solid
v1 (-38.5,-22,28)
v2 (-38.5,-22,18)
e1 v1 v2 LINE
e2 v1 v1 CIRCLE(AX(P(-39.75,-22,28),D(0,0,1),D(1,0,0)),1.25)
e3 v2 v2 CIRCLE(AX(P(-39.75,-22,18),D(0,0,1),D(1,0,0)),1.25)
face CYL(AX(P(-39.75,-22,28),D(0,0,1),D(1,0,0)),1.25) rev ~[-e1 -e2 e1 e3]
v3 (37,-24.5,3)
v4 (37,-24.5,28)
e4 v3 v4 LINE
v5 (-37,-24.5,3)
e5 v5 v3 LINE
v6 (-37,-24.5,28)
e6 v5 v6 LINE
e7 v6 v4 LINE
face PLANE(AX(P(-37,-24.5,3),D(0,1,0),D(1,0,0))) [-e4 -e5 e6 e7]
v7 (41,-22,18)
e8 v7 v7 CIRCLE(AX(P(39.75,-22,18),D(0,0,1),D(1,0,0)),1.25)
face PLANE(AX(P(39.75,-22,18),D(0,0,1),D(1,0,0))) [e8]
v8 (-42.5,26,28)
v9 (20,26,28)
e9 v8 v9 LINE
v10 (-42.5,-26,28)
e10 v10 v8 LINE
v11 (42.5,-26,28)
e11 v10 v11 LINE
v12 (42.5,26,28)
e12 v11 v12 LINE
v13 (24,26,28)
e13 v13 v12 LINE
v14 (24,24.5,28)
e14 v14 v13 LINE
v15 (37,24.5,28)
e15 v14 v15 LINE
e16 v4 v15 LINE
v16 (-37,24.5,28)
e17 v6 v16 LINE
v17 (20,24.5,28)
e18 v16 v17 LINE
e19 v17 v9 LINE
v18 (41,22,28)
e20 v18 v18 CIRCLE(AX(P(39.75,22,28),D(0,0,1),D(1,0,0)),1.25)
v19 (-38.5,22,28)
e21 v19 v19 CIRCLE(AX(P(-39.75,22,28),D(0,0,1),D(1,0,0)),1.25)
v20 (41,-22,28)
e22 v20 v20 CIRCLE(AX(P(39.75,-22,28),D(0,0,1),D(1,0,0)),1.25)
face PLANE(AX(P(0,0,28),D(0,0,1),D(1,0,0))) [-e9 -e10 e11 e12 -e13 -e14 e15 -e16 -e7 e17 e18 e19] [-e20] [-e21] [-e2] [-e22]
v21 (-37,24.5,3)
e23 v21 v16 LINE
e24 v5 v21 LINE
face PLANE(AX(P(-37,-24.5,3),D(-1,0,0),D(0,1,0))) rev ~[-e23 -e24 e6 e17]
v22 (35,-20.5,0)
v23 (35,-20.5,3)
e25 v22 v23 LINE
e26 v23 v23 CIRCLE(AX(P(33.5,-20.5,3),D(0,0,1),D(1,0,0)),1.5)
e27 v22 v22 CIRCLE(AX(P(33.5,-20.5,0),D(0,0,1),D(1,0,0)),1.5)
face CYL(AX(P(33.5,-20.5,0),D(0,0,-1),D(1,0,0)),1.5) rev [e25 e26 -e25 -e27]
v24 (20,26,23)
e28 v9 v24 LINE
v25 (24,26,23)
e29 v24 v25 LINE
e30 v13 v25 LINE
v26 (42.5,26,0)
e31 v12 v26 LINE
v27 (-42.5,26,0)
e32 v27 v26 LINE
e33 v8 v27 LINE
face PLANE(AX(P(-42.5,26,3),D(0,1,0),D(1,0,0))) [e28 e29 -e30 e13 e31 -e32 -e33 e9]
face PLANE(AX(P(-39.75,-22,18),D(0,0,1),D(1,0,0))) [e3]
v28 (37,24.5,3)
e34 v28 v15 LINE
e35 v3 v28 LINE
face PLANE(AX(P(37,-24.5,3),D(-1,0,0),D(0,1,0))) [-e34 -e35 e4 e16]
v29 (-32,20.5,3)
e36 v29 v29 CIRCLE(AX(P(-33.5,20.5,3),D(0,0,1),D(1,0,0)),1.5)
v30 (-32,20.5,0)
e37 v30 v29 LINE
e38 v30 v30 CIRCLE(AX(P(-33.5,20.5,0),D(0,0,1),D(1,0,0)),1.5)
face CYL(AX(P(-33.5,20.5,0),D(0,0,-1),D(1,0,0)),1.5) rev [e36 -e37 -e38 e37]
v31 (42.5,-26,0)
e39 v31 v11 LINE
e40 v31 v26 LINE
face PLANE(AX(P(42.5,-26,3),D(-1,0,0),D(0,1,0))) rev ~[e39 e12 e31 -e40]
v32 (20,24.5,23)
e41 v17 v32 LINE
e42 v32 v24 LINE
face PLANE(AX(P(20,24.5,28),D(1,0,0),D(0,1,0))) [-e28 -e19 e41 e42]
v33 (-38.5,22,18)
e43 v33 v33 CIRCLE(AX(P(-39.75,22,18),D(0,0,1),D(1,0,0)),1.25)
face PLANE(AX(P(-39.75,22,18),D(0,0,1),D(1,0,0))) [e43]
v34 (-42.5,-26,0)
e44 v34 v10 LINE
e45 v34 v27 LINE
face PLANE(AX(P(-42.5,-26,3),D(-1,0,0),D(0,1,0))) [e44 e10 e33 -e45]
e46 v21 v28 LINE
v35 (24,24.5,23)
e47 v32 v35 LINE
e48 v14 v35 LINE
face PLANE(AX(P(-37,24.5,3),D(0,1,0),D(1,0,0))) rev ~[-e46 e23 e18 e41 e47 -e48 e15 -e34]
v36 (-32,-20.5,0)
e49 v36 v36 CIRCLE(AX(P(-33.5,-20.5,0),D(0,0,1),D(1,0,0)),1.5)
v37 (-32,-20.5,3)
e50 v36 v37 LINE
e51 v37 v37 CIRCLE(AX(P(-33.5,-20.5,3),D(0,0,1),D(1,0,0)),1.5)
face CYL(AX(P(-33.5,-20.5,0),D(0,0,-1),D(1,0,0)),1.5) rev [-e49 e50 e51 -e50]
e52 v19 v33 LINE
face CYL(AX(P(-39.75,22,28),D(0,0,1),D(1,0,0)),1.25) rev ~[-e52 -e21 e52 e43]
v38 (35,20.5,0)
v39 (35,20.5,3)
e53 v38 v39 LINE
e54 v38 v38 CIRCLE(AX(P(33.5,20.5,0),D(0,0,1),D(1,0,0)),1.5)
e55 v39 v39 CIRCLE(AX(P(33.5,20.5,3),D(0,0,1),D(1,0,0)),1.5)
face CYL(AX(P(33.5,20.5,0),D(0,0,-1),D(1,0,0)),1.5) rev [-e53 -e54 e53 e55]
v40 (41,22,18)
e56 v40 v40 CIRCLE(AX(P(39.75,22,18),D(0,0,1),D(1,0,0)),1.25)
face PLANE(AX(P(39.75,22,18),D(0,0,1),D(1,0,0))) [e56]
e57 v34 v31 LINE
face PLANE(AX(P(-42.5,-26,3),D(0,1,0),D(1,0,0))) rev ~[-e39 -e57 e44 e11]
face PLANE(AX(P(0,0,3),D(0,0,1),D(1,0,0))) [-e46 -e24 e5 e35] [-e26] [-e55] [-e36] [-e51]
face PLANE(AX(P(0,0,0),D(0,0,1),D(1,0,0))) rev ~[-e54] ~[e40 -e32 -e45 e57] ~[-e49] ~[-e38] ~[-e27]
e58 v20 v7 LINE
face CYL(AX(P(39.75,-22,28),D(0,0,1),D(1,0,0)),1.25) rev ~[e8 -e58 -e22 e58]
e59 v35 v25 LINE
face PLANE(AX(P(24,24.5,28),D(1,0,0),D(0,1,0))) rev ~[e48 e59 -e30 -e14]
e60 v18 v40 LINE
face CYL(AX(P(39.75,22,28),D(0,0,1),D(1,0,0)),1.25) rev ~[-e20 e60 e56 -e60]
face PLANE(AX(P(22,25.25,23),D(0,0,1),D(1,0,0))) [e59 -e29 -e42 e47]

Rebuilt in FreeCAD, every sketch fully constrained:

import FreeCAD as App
import Part
import Sketcher
from FreeCAD import Vector

doc = App.newDocument("Part")
params = doc.addObject("Spreadsheet::Sheet", "Params")
for row, (alias, value) in enumerate([
    ("sketch1_diameter", "3 mm"),
    ("sketch1_width", "85 mm"),
    ("sketch1_height", "52 mm"),
    ("pad1_length", "3 mm"),
    ("sketch2_width", "85 mm"),
    ("sketch2_width2", "74 mm"),
    ("sketch2_height", "52 mm"),
    ("sketch2_height2", "49 mm"),
    ("pad2_length", "25 mm"),
    ("sketch3_diameter", "2.5 mm"),
    ("pocket1_length", "10 mm"),
    ("sketch4_width", "4 mm"),
    ("sketch4_height", "1.5 mm"),
    ("pocket2_length", "5 mm"),
], start=1):
    params.set(f"A{row}", alias)
    params.set(f"B{row}", "=" + value)
    params.setAlias(f"B{row}", alias)

body = doc.addObject("PartDesign::Body", "Body")

# Sketch on XY plane
sketch1 = body.newObject("Sketcher::SketchObject", "Sketch")
sketch1.AttachmentSupport = (doc.getObject("XY_Plane"), [""])
sketch1.MapMode = "FlatFace"
sketch1.addGeometry(Part.LineSegment(Vector(-42.5, 26, 0), Vector(-42.5, -26, 0)), False)
sketch1.addGeometry(Part.LineSegment(Vector(-42.5, -26, 0), Vector(42.5, -26, 0)), False)
sketch1.addGeometry(Part.LineSegment(Vector(42.5, -26, 0), Vector(42.5, 26, 0)), False)
sketch1.addGeometry(Part.LineSegment(Vector(42.5, 26, 0), Vector(-42.5, 26, 0)), False)
sketch1.addGeometry(Part.Circle(Vector(-33.5, -20.5, 0), Vector(0, 0, 1), 1.5), False)
sketch1.addGeometry(Part.Circle(Vector(33.5, -20.5, 0), Vector(0, 0, 1), 1.5), False)
sketch1.addGeometry(Part.Circle(Vector(-33.5, 20.5, 0), Vector(0, 0, 1), 1.5), False)
sketch1.addGeometry(Part.Circle(Vector(33.5, 20.5, 0), Vector(0, 0, 1), 1.5), False)
sketch1.addConstraint(Sketcher.Constraint("Coincident", 0, 2, 1, 1))
sketch1.addConstraint(Sketcher.Constraint("Coincident", 1, 2, 2, 1))
sketch1.addConstraint(Sketcher.Constraint("Coincident", 2, 2, 3, 1))
sketch1.addConstraint(Sketcher.Constraint("Coincident", 3, 2, 0, 1))
sketch1.addConstraint(Sketcher.Constraint("Vertical", 0))
sketch1.addConstraint(Sketcher.Constraint("Horizontal", 1))
sketch1.addConstraint(Sketcher.Constraint("Vertical", 2))
sketch1.addConstraint(Sketcher.Constraint("Horizontal", 3))
sketch1.addConstraint(Sketcher.Constraint("Equal", 4, 5))
sketch1.addConstraint(Sketcher.Constraint("Equal", 5, 6))
sketch1.addConstraint(Sketcher.Constraint("Equal", 6, 7))
sketch1.addConstraint(Sketcher.Constraint("Symmetric", 5, 3, 6, 3, -1, 1))
sketch1.addConstraint(Sketcher.Constraint("Symmetric", 4, 3, 7, 3, -1, 1))
sketch1.addConstraint(Sketcher.Constraint("Symmetric", 0, 2, 2, 2, -1, 1))
sketch1.addConstraint(Sketcher.Constraint("Symmetric", 4, 3, 5, 3, -2))
sketch1.addConstraint(Sketcher.Constraint("Diameter", 4, 3.0))
sketch1.addConstraint(Sketcher.Constraint("DistanceX", 1, 1, 1, 2, 85.0))
sketch1.addConstraint(Sketcher.Constraint("DistanceY", 0, 2, 0, 1, 52.0))
sketch1.addConstraint(Sketcher.Constraint("DistanceX", 4, 3, 5, 3, 67.0))
sketch1.addConstraint(Sketcher.Constraint("DistanceY", 4, 3, 6, 3, 41.0))
sketch1.setExpression("Constraints[15]", "Params.sketch1_diameter")
sketch1.setExpression("Constraints[16]", "Params.sketch1_width")
sketch1.setExpression("Constraints[17]", "Params.sketch1_height")
pad1 = body.newObject("PartDesign::Pad", "Pad")
pad1.Profile = sketch1
pad1.setExpression("Length", "Params.pad1_length")

# Sketch on XY plane
sketch2 = body.newObject("Sketcher::SketchObject", "Sketch001")
sketch2.AttachmentSupport = (doc.getObject("XY_Plane"), [""])
sketch2.MapMode = "FlatFace"
sketch2.AttachmentOffset = App.Placement(Vector(0, 0, 3), App.Rotation())
sketch2.addGeometry(Part.LineSegment(Vector(-42.5, 26, 0), Vector(-42.5, -26, 0)), False)
sketch2.addGeometry(Part.LineSegment(Vector(-42.5, -26, 0), Vector(42.5, -26, 0)), False)
sketch2.addGeometry(Part.LineSegment(Vector(42.5, -26, 0), Vector(42.5, 26, 0)), False)
sketch2.addGeometry(Part.LineSegment(Vector(42.5, 26, 0), Vector(-42.5, 26, 0)), False)
sketch2.addGeometry(Part.LineSegment(Vector(37, -24.5, 0), Vector(-37, -24.5, 0)), False)
sketch2.addGeometry(Part.LineSegment(Vector(-37, -24.5, 0), Vector(-37, 24.5, 0)), False)
sketch2.addGeometry(Part.LineSegment(Vector(-37, 24.5, 0), Vector(37, 24.5, 0)), False)
sketch2.addGeometry(Part.LineSegment(Vector(37, 24.5, 0), Vector(37, -24.5, 0)), False)
sketch2.addConstraint(Sketcher.Constraint("Coincident", 0, 2, 1, 1))
sketch2.addConstraint(Sketcher.Constraint("Coincident", 1, 2, 2, 1))
sketch2.addConstraint(Sketcher.Constraint("Coincident", 2, 2, 3, 1))
sketch2.addConstraint(Sketcher.Constraint("Coincident", 3, 2, 0, 1))
sketch2.addConstraint(Sketcher.Constraint("Coincident", 4, 2, 5, 1))
sketch2.addConstraint(Sketcher.Constraint("Coincident", 5, 2, 6, 1))
sketch2.addConstraint(Sketcher.Constraint("Coincident", 6, 2, 7, 1))
sketch2.addConstraint(Sketcher.Constraint("Coincident", 7, 2, 4, 1))
sketch2.addConstraint(Sketcher.Constraint("Vertical", 0))
sketch2.addConstraint(Sketcher.Constraint("Horizontal", 1))
sketch2.addConstraint(Sketcher.Constraint("Vertical", 2))
sketch2.addConstraint(Sketcher.Constraint("Horizontal", 3))
sketch2.addConstraint(Sketcher.Constraint("Horizontal", 4))
sketch2.addConstraint(Sketcher.Constraint("Vertical", 5))
sketch2.addConstraint(Sketcher.Constraint("Horizontal", 6))
sketch2.addConstraint(Sketcher.Constraint("Vertical", 7))
sketch2.addConstraint(Sketcher.Constraint("Symmetric", 0, 2, 2, 2, -1, 1))
sketch2.addConstraint(Sketcher.Constraint("Symmetric", 4, 2, 6, 2, -1, 1))
sketch2.addConstraint(Sketcher.Constraint("DistanceX", 1, 1, 1, 2, 85.0))
sketch2.addConstraint(Sketcher.Constraint("DistanceX", 4, 2, 4, 1, 74.0))
sketch2.addConstraint(Sketcher.Constraint("DistanceY", 0, 2, 0, 1, 52.0))
sketch2.addConstraint(Sketcher.Constraint("DistanceY", 5, 1, 5, 2, 49.0))
sketch2.setExpression("Constraints[18]", "Params.sketch2_width")
sketch2.setExpression("Constraints[19]", "Params.sketch2_width2")
sketch2.setExpression("Constraints[20]", "Params.sketch2_height")
sketch2.setExpression("Constraints[21]", "Params.sketch2_height2")
pad2 = body.newObject("PartDesign::Pad", "Pad001")
pad2.Profile = sketch2
pad2.setExpression("Length", "Params.pad2_length")

# Sketch on XY plane
sketch3 = body.newObject("Sketcher::SketchObject", "Sketch002")
sketch3.AttachmentSupport = (doc.getObject("XY_Plane"), [""])
sketch3.MapMode = "FlatFace"
sketch3.AttachmentOffset = App.Placement(Vector(0, 0, 28), App.Rotation())
sketch3.addGeometry(Part.Circle(Vector(-39.75, 22, 0), Vector(0, 0, 1), 1.25), False)
sketch3.addGeometry(Part.Circle(Vector(-39.75, -22, 0), Vector(0, 0, 1), 1.25), False)
sketch3.addGeometry(Part.Circle(Vector(39.75, 22, 0), Vector(0, 0, 1), 1.25), False)
sketch3.addGeometry(Part.Circle(Vector(39.75, -22, 0), Vector(0, 0, 1), 1.25), False)
sketch3.addConstraint(Sketcher.Constraint("Equal", 0, 1))
sketch3.addConstraint(Sketcher.Constraint("Equal", 1, 2))
sketch3.addConstraint(Sketcher.Constraint("Equal", 2, 3))
sketch3.addConstraint(Sketcher.Constraint("Symmetric", 1, 3, 2, 3, -1, 1))
sketch3.addConstraint(Sketcher.Constraint("Symmetric", 0, 3, 3, 3, -1, 1))
sketch3.addConstraint(Sketcher.Constraint("Symmetric", 0, 3, 2, 3, -2))
sketch3.addConstraint(Sketcher.Constraint("Diameter", 0, 2.5))
sketch3.addConstraint(Sketcher.Constraint("DistanceY", -1, 1, 0, 3, 22.0))
sketch3.addConstraint(Sketcher.Constraint("DistanceX", 0, 3, 2, 3, 79.5))
sketch3.setExpression("Constraints[6]", "Params.sketch3_diameter")
pocket1 = body.newObject("PartDesign::Pocket", "Pocket")
pocket1.Profile = sketch3
pocket1.setExpression("Length", "Params.pocket1_length")

# Sketch on XY plane
sketch4 = body.newObject("Sketcher::SketchObject", "Sketch003")
sketch4.AttachmentSupport = (doc.getObject("XY_Plane"), [""])
sketch4.MapMode = "FlatFace"
sketch4.AttachmentOffset = App.Placement(Vector(0, 0, 28), App.Rotation())
sketch4.addGeometry(Part.LineSegment(Vector(20, 26, 0), Vector(20, 24.5, 0)), False)
sketch4.addGeometry(Part.LineSegment(Vector(20, 24.5, 0), Vector(24, 24.5, 0)), False)
sketch4.addGeometry(Part.LineSegment(Vector(24, 24.5, 0), Vector(24, 26, 0)), False)
sketch4.addGeometry(Part.LineSegment(Vector(24, 26, 0), Vector(20, 26, 0)), False)
sketch4.addConstraint(Sketcher.Constraint("Coincident", 0, 2, 1, 1))
sketch4.addConstraint(Sketcher.Constraint("Coincident", 1, 2, 2, 1))
sketch4.addConstraint(Sketcher.Constraint("Coincident", 2, 2, 3, 1))
sketch4.addConstraint(Sketcher.Constraint("Coincident", 3, 2, 0, 1))
sketch4.addConstraint(Sketcher.Constraint("Vertical", 0))
sketch4.addConstraint(Sketcher.Constraint("Horizontal", 1))
sketch4.addConstraint(Sketcher.Constraint("Vertical", 2))
sketch4.addConstraint(Sketcher.Constraint("Horizontal", 3))
sketch4.addConstraint(Sketcher.Constraint("DistanceX", 1, 1, 1, 2, 4.0))
sketch4.addConstraint(Sketcher.Constraint("DistanceY", 0, 2, 0, 1, 1.5))
sketch4.addConstraint(Sketcher.Constraint("DistanceX", -1, 1, 0, 2, 20.0))
sketch4.addConstraint(Sketcher.Constraint("DistanceY", -1, 1, 2, 2, 26.0))
sketch4.setExpression("Constraints[8]", "Params.sketch4_width")
sketch4.setExpression("Constraints[9]", "Params.sketch4_height")
pocket2 = body.newObject("PartDesign::Pocket", "Pocket001")
pocket2.Profile = sketch4
pocket2.setExpression("Length", "Params.pocket2_length")

doc.recompute()
